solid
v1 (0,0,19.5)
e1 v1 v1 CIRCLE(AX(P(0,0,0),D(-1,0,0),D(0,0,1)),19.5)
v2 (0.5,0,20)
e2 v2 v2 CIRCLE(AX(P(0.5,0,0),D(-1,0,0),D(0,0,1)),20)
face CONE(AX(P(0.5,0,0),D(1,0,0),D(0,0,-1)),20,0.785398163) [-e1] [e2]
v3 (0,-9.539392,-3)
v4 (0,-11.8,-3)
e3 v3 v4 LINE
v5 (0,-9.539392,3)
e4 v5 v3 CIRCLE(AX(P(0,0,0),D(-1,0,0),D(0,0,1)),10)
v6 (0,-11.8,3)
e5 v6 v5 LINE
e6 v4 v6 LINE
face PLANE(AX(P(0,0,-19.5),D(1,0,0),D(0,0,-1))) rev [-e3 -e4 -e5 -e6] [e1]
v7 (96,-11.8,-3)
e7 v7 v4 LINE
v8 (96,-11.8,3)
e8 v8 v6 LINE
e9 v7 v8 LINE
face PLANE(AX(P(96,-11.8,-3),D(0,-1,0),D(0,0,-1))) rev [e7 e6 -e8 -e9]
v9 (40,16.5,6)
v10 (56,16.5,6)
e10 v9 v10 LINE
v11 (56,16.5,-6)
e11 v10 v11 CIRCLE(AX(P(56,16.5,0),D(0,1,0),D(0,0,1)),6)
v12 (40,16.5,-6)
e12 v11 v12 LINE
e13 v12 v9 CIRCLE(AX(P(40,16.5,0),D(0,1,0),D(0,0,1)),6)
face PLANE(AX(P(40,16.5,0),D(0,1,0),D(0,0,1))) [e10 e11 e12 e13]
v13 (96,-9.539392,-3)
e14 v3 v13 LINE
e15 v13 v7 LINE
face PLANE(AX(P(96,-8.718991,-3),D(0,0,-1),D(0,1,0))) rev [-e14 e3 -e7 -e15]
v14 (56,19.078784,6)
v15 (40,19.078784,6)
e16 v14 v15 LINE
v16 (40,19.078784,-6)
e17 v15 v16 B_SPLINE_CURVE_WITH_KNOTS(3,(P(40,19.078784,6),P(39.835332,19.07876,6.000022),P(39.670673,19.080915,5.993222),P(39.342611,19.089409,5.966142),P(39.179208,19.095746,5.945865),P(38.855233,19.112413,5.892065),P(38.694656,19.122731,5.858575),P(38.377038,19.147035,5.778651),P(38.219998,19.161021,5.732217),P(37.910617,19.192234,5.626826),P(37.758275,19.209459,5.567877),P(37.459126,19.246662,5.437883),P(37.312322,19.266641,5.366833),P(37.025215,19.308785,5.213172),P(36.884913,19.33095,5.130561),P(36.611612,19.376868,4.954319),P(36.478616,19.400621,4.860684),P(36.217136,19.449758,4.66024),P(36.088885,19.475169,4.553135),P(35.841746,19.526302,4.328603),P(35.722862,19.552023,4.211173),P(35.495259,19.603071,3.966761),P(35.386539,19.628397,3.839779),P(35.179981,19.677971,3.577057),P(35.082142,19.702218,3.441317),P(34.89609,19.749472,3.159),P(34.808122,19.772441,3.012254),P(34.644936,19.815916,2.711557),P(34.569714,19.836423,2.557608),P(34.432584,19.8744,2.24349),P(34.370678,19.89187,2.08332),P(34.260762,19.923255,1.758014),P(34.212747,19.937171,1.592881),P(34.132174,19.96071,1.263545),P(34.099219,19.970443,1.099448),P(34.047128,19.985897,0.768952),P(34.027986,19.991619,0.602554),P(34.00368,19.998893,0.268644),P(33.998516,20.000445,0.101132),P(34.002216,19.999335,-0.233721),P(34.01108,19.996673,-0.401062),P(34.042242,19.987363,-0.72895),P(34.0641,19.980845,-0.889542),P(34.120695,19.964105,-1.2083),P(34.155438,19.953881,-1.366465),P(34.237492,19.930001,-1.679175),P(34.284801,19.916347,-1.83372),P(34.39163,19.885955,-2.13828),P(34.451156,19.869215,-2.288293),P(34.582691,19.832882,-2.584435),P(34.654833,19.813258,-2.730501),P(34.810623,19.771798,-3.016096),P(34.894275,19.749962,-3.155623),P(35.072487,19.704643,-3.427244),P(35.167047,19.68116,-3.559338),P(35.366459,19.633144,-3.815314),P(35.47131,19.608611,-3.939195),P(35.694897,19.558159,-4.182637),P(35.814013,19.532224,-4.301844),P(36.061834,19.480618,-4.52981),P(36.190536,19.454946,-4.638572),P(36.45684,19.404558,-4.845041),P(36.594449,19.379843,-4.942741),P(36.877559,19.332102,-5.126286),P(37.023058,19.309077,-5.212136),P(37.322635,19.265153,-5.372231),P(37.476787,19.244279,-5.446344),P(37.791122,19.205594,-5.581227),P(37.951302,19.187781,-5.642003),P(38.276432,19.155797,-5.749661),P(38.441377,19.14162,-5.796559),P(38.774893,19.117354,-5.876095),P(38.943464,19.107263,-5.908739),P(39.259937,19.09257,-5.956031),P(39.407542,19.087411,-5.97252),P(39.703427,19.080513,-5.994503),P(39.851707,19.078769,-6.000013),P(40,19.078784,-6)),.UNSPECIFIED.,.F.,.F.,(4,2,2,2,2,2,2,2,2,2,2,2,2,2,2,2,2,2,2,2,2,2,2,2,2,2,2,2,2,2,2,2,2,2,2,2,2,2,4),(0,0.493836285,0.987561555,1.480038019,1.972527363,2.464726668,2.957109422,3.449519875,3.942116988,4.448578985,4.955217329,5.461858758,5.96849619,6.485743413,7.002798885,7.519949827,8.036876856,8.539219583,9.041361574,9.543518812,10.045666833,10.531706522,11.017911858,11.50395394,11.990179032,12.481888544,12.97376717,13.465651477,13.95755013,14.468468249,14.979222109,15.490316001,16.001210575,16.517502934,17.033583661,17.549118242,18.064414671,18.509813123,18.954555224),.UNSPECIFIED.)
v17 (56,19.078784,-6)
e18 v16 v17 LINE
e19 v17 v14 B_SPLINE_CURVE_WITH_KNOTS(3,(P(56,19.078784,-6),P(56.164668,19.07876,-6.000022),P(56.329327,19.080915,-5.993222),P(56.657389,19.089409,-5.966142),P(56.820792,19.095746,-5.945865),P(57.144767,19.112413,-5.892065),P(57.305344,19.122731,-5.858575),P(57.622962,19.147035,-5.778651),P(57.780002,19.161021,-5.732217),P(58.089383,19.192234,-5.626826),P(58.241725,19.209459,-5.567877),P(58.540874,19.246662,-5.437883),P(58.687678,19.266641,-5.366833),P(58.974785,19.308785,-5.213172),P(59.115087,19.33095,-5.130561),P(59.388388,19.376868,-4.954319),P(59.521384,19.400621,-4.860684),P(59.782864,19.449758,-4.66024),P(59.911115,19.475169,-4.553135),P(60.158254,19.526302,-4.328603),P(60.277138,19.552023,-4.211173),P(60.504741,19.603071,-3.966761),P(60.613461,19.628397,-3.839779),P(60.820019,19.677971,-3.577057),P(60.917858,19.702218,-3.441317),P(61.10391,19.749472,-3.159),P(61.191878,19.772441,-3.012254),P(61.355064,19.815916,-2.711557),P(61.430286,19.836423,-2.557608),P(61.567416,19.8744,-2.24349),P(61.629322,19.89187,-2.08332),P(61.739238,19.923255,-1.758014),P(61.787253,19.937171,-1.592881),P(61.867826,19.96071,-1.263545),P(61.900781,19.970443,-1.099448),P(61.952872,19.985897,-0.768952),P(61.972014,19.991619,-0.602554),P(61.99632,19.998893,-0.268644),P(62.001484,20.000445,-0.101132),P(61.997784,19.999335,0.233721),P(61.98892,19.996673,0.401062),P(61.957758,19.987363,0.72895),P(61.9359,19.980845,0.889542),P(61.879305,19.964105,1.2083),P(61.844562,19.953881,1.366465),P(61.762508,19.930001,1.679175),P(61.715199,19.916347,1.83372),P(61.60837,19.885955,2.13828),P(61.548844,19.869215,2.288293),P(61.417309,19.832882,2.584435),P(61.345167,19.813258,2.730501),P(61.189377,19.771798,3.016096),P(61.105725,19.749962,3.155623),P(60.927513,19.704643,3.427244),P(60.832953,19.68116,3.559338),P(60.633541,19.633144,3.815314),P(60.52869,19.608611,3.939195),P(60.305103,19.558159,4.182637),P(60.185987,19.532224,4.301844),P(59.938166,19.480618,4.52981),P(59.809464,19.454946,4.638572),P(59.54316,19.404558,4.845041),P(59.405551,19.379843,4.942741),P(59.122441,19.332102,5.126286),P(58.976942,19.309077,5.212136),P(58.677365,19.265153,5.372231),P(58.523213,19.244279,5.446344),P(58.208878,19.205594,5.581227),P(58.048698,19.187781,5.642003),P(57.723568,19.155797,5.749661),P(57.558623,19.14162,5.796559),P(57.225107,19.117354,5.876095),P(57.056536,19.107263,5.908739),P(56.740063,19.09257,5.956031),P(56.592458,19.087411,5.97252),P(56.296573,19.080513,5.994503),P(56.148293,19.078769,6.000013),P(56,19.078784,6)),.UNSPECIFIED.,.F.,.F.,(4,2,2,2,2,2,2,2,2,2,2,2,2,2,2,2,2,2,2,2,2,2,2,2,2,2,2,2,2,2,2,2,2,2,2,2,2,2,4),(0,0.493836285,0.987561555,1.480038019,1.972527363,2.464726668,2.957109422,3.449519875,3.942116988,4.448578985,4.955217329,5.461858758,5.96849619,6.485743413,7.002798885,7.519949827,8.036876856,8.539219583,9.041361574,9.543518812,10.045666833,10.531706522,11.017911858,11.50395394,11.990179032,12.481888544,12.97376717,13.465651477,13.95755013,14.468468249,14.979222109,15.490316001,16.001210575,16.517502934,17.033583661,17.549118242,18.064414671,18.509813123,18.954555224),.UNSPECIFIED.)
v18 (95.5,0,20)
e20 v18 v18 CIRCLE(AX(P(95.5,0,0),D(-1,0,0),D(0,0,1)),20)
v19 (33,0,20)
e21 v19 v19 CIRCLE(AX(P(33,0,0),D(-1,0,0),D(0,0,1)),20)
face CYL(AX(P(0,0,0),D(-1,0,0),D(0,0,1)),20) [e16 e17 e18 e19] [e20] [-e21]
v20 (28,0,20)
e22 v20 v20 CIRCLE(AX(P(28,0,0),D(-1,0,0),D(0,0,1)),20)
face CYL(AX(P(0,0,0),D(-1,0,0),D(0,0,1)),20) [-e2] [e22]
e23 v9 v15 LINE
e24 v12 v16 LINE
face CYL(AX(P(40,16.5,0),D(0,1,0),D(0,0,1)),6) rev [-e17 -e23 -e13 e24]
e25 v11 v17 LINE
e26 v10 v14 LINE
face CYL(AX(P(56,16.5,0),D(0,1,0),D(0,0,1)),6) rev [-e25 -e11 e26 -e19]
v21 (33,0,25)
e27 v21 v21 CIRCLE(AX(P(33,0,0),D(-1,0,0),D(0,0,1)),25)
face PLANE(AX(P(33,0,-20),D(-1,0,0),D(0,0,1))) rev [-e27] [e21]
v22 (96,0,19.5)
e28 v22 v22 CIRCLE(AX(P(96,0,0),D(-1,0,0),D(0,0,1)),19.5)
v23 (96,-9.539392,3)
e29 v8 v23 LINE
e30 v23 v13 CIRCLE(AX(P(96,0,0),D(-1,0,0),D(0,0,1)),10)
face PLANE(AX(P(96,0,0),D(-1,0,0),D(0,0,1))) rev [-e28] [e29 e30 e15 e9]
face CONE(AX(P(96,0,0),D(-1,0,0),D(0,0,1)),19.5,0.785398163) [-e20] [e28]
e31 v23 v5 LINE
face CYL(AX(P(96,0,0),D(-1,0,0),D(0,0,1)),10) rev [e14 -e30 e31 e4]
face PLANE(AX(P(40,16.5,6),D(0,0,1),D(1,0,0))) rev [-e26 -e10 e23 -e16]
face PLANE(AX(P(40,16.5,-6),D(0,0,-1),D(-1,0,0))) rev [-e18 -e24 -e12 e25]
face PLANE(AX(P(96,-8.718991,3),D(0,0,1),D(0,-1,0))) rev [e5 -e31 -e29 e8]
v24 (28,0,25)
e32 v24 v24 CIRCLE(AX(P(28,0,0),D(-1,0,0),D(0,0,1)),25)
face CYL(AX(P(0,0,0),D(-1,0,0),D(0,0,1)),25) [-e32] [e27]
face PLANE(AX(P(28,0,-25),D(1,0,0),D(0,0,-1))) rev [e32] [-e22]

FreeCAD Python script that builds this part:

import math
import FreeCAD as App
import Part
import Sketcher


def add_polygon(sketch, points):
    """Adds a closed chain of lines whose ends are joined by coincident constraints."""
    first, n = sketch.GeometryCount, len(points)
    for a, b in zip(points, points[1:] + points[:1]):
        sketch.addGeometry(Part.LineSegment(App.Vector(*a, 0), App.Vector(*b, 0)), False)
    for i in range(n):
        sketch.addConstraint(Sketcher.Constraint("Coincident", first + i, 2, first + (i + 1) % n, 1))

doc = App.newDocument("Part")
body = doc.addObject("PartDesign::Body", "Body")

sketch1 = body.newObject("Sketcher::SketchObject", "Sketch")
sketch1.AttachmentSupport = (doc.getObject("XZ_Plane"), [""])
sketch1.MapMode = "FlatFace"
add_polygon(sketch1, [(96, 0), (96, -19.5), (95.5, -20), (33, -20), (33, -25), (28, -25), (28, -20), (0.5, -20), (0, -19.5), (0, 0)])
sketch1.addConstraint([
    Sketcher.Constraint("Vertical", 0),
    Sketcher.Constraint("Horizontal", 2),
    Sketcher.Constraint("Vertical", 3),
    Sketcher.Constraint("Horizontal", 4),
    Sketcher.Constraint("Vertical", 5),
    Sketcher.Constraint("Horizontal", 6),
    Sketcher.Constraint("Vertical", 8),
    Sketcher.Constraint("Horizontal", 9),
    Sketcher.Constraint("Coincident", 8, 2, -1, 1),
    Sketcher.Constraint("Perpendicular", 1, 7),
    Sketcher.Constraint("Horizontal", 2, 2, 5, 2),
    Sketcher.Constraint("Horizontal", 0, 2, 7, 2),
    Sketcher.Constraint("Equal", 4, 3),
    Sketcher.Constraint("Equal", 1, 7),
    Sketcher.Constraint("DistanceX", 4, 2, 4, 1, 5.0),
    Sketcher.Constraint("DistanceX", 9, 1, 9, 2, 96.0),
    Sketcher.Constraint("DistanceX", 2, 2, 2, 1, 62.5),
    Sketcher.Constraint("DistanceX", 6, 2, 6, 1, 27.5),
    Sketcher.Constraint("DistanceY", 0, 2, 0, 1, 19.5),
])
revolution = body.newObject("PartDesign::Revolution", "Revolution")
revolution.Profile = sketch1
revolution.ReferenceAxis = (sketch1, ["H_Axis"])
revolution.Angle = 360

sketch2 = body.newObject("Sketcher::SketchObject", "Sketch001")
sketch2.AttachmentSupport = (doc.getObject("XZ_Plane"), [""])
sketch2.MapMode = "FlatFace"
sketch2.AttachmentOffset = App.Placement(App.Vector(0, 0, -20), App.Rotation())
sketch2.addGeometry([
    Part.LineSegment(App.Vector(56, -6, 0), App.Vector(40, -6, 0)),
    Part.ArcOfCircle(Part.Circle(App.Vector(40, 0, 0), App.Vector(0, 0, 1), 6), math.radians(90), math.radians(270)),
    Part.LineSegment(App.Vector(40, 6, 0), App.Vector(56, 6, 0)),
    Part.ArcOfCircle(Part.Circle(App.Vector(56, 0, 0), App.Vector(0, 0, 1), 6), math.radians(-90), math.radians(90)),
], False)
sketch2.addConstraint([
    Sketcher.Constraint("Tangent", 0, 2, 1, 2),
    Sketcher.Constraint("Tangent", 1, 1, 2, 1),
    Sketcher.Constraint("Tangent", 2, 2, 3, 2),
    Sketcher.Constraint("Tangent", 3, 1, 0, 1),
    Sketcher.Constraint("Horizontal", 0),
    Sketcher.Constraint("Horizontal", 2),
    Sketcher.Constraint("PointOnObject", 1, 3, -1),
    Sketcher.Constraint("Radius", 1, 6.0),
    Sketcher.Constraint("DistanceX", 0, 2, 0, 1, 16.0),
    Sketcher.Constraint("DistanceX", -1, 1, 1, 3, 40.0),
])
pocket1 = body.newObject("PartDesign::Pocket", "Pocket")
pocket1.Profile = sketch2
pocket1.Length = 3.5
pocket1.Reversed = True

sketch3 = body.newObject("Sketcher::SketchObject", "Sketch002")
sketch3.AttachmentSupport = (doc.getObject("YZ_Plane"), [""])
sketch3.MapMode = "FlatFace"
sketch3.addGeometry(Part.Circle(App.Vector(0, 0, 0), App.Vector(0, 0, 1), 10), False)
sketch3.addConstraint([
    Sketcher.Constraint("Coincident", 0, 3, -1, 1),
    Sketcher.Constraint("Diameter", 0, 20.0),
])
pocket2 = body.newObject("PartDesign::Pocket", "Pocket001")
pocket2.Profile = sketch3
pocket2.Type = "ThroughAll"
pocket2.Reversed = True

sketch4 = body.newObject("Sketcher::SketchObject", "Sketch003")
sketch4.AttachmentSupport = (doc.getObject("YZ_Plane"), [""])
sketch4.MapMode = "FlatFace"
add_polygon(sketch4, [(-8.7, -3), (-11.8, -3), (-11.8, 3), (-8.7, 3)])
sketch4.addConstraint([
    Sketcher.Constraint("Horizontal", 0),
    Sketcher.Constraint("Vertical", 1),
    Sketcher.Constraint("Horizontal", 2),
    Sketcher.Constraint("Vertical", 3),
    Sketcher.Constraint("DistanceY", 1, 1, 1, 2, 6.0),
    Sketcher.Constraint("DistanceY", 0, 2, -1, 1, 3.0),
    Sketcher.Constraint("DistanceX", 0, 2, -1, 1, 11.8),
    Sketcher.Constraint("DistanceX", 0, 2, 0, 1, 3.081009),
])
pocket3 = body.newObject("PartDesign::Pocket", "Pocket002")
pocket3.Profile = sketch4
pocket3.Type = "ThroughAll"
pocket3.Reversed = True

doc.recompute()
